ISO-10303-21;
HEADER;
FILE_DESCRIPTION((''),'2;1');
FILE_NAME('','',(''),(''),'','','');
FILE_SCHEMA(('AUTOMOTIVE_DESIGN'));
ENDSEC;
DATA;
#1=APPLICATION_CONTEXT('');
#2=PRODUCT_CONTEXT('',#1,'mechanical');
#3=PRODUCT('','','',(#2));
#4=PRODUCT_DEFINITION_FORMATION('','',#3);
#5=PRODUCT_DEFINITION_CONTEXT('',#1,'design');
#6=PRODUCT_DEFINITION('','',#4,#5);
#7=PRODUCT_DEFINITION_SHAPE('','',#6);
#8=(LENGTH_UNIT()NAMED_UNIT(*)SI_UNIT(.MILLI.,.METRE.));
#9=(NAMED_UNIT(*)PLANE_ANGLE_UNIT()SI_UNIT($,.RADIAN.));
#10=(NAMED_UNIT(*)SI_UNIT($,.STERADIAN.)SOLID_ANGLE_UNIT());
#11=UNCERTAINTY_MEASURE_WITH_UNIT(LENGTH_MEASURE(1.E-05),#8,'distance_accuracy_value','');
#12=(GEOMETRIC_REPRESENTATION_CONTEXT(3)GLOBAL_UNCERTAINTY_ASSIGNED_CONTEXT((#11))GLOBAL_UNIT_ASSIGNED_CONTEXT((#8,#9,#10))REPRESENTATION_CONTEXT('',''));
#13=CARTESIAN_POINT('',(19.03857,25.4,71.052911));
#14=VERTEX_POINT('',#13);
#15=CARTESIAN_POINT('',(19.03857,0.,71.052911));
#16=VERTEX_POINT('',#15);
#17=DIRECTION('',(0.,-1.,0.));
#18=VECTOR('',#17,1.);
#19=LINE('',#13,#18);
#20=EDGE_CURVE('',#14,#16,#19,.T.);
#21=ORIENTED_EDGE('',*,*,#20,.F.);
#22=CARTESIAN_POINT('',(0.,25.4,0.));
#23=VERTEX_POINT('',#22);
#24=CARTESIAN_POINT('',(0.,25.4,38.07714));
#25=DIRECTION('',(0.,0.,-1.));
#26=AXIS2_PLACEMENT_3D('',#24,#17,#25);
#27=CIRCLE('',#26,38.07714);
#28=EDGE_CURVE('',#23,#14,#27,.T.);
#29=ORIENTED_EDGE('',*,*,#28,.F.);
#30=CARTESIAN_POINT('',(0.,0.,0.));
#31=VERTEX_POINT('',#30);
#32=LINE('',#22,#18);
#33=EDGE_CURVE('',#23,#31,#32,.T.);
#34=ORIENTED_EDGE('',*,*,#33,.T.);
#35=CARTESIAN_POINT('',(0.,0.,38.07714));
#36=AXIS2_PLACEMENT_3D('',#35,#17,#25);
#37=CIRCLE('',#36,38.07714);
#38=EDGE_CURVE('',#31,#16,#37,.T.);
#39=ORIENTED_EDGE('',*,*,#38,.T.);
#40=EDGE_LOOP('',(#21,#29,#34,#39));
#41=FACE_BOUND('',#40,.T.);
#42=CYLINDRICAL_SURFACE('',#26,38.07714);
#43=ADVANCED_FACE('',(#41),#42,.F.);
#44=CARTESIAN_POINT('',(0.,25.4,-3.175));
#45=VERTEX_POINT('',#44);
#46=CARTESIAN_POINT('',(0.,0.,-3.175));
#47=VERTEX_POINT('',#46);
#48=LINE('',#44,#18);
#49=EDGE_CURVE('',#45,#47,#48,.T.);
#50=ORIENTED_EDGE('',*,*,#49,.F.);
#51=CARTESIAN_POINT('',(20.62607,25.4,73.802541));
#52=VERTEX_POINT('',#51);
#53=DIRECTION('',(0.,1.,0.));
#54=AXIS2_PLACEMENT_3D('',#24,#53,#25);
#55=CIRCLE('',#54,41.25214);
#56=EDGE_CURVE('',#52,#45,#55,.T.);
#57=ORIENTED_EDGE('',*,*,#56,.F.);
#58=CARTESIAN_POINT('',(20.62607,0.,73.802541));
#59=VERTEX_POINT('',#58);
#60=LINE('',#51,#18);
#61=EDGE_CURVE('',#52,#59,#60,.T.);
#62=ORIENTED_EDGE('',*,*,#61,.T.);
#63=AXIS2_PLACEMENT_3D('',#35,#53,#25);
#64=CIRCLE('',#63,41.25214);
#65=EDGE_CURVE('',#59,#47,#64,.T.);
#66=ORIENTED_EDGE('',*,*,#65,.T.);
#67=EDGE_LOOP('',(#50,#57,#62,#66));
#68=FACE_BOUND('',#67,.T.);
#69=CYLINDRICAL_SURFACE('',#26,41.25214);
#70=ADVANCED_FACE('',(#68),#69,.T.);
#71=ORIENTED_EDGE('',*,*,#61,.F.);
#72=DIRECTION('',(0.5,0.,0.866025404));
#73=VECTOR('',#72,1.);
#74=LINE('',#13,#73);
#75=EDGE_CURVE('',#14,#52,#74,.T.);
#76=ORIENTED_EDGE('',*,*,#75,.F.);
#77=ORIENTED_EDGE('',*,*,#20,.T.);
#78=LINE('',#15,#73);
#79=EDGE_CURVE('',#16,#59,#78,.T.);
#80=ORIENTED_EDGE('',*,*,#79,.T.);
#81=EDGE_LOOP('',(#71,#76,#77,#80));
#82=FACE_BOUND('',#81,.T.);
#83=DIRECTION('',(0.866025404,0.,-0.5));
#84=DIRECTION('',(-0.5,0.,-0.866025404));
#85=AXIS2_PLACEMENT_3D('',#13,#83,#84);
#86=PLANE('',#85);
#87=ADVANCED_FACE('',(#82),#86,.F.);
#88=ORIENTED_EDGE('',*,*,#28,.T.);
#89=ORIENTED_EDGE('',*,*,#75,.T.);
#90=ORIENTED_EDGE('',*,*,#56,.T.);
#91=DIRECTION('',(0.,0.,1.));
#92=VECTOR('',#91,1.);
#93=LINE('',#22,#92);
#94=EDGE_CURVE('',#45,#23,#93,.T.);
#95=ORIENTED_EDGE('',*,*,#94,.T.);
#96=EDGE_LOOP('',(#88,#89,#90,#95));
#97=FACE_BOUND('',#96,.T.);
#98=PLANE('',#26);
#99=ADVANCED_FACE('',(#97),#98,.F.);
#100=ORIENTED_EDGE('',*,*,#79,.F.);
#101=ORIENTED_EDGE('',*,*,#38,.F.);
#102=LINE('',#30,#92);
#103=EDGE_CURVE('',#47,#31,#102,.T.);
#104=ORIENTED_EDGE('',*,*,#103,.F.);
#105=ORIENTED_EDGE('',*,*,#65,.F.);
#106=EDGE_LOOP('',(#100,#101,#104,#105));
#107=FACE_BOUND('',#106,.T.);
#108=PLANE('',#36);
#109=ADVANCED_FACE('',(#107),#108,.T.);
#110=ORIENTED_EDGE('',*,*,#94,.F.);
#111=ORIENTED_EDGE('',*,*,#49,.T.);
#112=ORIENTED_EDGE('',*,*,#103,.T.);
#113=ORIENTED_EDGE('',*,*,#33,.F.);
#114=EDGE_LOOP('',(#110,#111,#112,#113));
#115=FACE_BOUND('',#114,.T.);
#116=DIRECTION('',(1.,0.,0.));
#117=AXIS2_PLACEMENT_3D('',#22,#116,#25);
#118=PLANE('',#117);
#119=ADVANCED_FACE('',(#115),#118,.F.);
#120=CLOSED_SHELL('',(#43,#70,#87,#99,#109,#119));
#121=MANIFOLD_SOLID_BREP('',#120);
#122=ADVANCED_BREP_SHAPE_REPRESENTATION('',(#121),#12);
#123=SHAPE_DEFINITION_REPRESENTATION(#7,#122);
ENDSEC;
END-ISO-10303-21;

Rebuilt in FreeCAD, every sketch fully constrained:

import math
import FreeCAD as App
import Part
import Sketcher
from FreeCAD import Vector
Q = App.Units.Quantity

doc = App.newDocument("Part")
params = doc.addObject("Spreadsheet::Sheet", "Params")
for row, (alias, value) in enumerate([
    ("pad1_length", "1 in"),
], start=1):
    params.set(f"A{row}", alias)
    params.set(f"B{row}", "=" + value)
    params.setAlias(f"B{row}", alias)

body = doc.addObject("PartDesign::Body", "Body")

sketch1 = body.newObject("Sketcher::SketchObject", "Sketch")
sketch1.AttachmentSupport = (doc.getObject("XZ_Plane"), [""])
sketch1.MapMode = "FlatFace"
sketch1.addGeometry([
    Part.LineSegment(Vector(19.03857, 71.052911, 0), Vector(20.62607, 73.802541, 0)),
    Part.ArcOfCircle(Part.Circle(Vector(0, 38.07714, 0), Vector(0, 0, 1), 41.25214), math.radians(-90), math.radians(60)),
    Part.LineSegment(Vector(0, -3.175, 0), Vector(0, 0, 0)),
    Part.ArcOfCircle(Part.Circle(Vector(0, 38.07714, 0), Vector(0, 0, 1), 38.07714), math.radians(-90), math.radians(60)),
], False)
sketch1.addConstraint([
    Sketcher.Constraint("Coincident", 0, 2, 1, 2),
    Sketcher.Constraint("Coincident", 1, 1, 2, 1),
    Sketcher.Constraint("Coincident", 2, 2, 3, 1),
    Sketcher.Constraint("Coincident", 3, 2, 0, 1),
    Sketcher.Constraint("Vertical", 2),
    Sketcher.Constraint("Coincident", 2, 2, -1, 1),
    Sketcher.Constraint("Coincident", 3, 3, 1, 3),
    Sketcher.Constraint("PointOnObject", 1, 3, -2),
    Sketcher.Constraint("Angle", 0, Q("60 deg")),
    Sketcher.Constraint("Radius", 1, Q("1.6241 in")),
    Sketcher.Constraint("Radius", 3, Q("1.4991 in")),
    Sketcher.Constraint("DistanceY", 1, 3, 0, 2, Q("35.725401 mm")),
])
pad1 = body.newObject("PartDesign::Pad", "Pad")
pad1.Profile = sketch1
pad1.setExpression("Length", "Params.pad1_length")
pad1.Reversed = True

doc.recompute()
